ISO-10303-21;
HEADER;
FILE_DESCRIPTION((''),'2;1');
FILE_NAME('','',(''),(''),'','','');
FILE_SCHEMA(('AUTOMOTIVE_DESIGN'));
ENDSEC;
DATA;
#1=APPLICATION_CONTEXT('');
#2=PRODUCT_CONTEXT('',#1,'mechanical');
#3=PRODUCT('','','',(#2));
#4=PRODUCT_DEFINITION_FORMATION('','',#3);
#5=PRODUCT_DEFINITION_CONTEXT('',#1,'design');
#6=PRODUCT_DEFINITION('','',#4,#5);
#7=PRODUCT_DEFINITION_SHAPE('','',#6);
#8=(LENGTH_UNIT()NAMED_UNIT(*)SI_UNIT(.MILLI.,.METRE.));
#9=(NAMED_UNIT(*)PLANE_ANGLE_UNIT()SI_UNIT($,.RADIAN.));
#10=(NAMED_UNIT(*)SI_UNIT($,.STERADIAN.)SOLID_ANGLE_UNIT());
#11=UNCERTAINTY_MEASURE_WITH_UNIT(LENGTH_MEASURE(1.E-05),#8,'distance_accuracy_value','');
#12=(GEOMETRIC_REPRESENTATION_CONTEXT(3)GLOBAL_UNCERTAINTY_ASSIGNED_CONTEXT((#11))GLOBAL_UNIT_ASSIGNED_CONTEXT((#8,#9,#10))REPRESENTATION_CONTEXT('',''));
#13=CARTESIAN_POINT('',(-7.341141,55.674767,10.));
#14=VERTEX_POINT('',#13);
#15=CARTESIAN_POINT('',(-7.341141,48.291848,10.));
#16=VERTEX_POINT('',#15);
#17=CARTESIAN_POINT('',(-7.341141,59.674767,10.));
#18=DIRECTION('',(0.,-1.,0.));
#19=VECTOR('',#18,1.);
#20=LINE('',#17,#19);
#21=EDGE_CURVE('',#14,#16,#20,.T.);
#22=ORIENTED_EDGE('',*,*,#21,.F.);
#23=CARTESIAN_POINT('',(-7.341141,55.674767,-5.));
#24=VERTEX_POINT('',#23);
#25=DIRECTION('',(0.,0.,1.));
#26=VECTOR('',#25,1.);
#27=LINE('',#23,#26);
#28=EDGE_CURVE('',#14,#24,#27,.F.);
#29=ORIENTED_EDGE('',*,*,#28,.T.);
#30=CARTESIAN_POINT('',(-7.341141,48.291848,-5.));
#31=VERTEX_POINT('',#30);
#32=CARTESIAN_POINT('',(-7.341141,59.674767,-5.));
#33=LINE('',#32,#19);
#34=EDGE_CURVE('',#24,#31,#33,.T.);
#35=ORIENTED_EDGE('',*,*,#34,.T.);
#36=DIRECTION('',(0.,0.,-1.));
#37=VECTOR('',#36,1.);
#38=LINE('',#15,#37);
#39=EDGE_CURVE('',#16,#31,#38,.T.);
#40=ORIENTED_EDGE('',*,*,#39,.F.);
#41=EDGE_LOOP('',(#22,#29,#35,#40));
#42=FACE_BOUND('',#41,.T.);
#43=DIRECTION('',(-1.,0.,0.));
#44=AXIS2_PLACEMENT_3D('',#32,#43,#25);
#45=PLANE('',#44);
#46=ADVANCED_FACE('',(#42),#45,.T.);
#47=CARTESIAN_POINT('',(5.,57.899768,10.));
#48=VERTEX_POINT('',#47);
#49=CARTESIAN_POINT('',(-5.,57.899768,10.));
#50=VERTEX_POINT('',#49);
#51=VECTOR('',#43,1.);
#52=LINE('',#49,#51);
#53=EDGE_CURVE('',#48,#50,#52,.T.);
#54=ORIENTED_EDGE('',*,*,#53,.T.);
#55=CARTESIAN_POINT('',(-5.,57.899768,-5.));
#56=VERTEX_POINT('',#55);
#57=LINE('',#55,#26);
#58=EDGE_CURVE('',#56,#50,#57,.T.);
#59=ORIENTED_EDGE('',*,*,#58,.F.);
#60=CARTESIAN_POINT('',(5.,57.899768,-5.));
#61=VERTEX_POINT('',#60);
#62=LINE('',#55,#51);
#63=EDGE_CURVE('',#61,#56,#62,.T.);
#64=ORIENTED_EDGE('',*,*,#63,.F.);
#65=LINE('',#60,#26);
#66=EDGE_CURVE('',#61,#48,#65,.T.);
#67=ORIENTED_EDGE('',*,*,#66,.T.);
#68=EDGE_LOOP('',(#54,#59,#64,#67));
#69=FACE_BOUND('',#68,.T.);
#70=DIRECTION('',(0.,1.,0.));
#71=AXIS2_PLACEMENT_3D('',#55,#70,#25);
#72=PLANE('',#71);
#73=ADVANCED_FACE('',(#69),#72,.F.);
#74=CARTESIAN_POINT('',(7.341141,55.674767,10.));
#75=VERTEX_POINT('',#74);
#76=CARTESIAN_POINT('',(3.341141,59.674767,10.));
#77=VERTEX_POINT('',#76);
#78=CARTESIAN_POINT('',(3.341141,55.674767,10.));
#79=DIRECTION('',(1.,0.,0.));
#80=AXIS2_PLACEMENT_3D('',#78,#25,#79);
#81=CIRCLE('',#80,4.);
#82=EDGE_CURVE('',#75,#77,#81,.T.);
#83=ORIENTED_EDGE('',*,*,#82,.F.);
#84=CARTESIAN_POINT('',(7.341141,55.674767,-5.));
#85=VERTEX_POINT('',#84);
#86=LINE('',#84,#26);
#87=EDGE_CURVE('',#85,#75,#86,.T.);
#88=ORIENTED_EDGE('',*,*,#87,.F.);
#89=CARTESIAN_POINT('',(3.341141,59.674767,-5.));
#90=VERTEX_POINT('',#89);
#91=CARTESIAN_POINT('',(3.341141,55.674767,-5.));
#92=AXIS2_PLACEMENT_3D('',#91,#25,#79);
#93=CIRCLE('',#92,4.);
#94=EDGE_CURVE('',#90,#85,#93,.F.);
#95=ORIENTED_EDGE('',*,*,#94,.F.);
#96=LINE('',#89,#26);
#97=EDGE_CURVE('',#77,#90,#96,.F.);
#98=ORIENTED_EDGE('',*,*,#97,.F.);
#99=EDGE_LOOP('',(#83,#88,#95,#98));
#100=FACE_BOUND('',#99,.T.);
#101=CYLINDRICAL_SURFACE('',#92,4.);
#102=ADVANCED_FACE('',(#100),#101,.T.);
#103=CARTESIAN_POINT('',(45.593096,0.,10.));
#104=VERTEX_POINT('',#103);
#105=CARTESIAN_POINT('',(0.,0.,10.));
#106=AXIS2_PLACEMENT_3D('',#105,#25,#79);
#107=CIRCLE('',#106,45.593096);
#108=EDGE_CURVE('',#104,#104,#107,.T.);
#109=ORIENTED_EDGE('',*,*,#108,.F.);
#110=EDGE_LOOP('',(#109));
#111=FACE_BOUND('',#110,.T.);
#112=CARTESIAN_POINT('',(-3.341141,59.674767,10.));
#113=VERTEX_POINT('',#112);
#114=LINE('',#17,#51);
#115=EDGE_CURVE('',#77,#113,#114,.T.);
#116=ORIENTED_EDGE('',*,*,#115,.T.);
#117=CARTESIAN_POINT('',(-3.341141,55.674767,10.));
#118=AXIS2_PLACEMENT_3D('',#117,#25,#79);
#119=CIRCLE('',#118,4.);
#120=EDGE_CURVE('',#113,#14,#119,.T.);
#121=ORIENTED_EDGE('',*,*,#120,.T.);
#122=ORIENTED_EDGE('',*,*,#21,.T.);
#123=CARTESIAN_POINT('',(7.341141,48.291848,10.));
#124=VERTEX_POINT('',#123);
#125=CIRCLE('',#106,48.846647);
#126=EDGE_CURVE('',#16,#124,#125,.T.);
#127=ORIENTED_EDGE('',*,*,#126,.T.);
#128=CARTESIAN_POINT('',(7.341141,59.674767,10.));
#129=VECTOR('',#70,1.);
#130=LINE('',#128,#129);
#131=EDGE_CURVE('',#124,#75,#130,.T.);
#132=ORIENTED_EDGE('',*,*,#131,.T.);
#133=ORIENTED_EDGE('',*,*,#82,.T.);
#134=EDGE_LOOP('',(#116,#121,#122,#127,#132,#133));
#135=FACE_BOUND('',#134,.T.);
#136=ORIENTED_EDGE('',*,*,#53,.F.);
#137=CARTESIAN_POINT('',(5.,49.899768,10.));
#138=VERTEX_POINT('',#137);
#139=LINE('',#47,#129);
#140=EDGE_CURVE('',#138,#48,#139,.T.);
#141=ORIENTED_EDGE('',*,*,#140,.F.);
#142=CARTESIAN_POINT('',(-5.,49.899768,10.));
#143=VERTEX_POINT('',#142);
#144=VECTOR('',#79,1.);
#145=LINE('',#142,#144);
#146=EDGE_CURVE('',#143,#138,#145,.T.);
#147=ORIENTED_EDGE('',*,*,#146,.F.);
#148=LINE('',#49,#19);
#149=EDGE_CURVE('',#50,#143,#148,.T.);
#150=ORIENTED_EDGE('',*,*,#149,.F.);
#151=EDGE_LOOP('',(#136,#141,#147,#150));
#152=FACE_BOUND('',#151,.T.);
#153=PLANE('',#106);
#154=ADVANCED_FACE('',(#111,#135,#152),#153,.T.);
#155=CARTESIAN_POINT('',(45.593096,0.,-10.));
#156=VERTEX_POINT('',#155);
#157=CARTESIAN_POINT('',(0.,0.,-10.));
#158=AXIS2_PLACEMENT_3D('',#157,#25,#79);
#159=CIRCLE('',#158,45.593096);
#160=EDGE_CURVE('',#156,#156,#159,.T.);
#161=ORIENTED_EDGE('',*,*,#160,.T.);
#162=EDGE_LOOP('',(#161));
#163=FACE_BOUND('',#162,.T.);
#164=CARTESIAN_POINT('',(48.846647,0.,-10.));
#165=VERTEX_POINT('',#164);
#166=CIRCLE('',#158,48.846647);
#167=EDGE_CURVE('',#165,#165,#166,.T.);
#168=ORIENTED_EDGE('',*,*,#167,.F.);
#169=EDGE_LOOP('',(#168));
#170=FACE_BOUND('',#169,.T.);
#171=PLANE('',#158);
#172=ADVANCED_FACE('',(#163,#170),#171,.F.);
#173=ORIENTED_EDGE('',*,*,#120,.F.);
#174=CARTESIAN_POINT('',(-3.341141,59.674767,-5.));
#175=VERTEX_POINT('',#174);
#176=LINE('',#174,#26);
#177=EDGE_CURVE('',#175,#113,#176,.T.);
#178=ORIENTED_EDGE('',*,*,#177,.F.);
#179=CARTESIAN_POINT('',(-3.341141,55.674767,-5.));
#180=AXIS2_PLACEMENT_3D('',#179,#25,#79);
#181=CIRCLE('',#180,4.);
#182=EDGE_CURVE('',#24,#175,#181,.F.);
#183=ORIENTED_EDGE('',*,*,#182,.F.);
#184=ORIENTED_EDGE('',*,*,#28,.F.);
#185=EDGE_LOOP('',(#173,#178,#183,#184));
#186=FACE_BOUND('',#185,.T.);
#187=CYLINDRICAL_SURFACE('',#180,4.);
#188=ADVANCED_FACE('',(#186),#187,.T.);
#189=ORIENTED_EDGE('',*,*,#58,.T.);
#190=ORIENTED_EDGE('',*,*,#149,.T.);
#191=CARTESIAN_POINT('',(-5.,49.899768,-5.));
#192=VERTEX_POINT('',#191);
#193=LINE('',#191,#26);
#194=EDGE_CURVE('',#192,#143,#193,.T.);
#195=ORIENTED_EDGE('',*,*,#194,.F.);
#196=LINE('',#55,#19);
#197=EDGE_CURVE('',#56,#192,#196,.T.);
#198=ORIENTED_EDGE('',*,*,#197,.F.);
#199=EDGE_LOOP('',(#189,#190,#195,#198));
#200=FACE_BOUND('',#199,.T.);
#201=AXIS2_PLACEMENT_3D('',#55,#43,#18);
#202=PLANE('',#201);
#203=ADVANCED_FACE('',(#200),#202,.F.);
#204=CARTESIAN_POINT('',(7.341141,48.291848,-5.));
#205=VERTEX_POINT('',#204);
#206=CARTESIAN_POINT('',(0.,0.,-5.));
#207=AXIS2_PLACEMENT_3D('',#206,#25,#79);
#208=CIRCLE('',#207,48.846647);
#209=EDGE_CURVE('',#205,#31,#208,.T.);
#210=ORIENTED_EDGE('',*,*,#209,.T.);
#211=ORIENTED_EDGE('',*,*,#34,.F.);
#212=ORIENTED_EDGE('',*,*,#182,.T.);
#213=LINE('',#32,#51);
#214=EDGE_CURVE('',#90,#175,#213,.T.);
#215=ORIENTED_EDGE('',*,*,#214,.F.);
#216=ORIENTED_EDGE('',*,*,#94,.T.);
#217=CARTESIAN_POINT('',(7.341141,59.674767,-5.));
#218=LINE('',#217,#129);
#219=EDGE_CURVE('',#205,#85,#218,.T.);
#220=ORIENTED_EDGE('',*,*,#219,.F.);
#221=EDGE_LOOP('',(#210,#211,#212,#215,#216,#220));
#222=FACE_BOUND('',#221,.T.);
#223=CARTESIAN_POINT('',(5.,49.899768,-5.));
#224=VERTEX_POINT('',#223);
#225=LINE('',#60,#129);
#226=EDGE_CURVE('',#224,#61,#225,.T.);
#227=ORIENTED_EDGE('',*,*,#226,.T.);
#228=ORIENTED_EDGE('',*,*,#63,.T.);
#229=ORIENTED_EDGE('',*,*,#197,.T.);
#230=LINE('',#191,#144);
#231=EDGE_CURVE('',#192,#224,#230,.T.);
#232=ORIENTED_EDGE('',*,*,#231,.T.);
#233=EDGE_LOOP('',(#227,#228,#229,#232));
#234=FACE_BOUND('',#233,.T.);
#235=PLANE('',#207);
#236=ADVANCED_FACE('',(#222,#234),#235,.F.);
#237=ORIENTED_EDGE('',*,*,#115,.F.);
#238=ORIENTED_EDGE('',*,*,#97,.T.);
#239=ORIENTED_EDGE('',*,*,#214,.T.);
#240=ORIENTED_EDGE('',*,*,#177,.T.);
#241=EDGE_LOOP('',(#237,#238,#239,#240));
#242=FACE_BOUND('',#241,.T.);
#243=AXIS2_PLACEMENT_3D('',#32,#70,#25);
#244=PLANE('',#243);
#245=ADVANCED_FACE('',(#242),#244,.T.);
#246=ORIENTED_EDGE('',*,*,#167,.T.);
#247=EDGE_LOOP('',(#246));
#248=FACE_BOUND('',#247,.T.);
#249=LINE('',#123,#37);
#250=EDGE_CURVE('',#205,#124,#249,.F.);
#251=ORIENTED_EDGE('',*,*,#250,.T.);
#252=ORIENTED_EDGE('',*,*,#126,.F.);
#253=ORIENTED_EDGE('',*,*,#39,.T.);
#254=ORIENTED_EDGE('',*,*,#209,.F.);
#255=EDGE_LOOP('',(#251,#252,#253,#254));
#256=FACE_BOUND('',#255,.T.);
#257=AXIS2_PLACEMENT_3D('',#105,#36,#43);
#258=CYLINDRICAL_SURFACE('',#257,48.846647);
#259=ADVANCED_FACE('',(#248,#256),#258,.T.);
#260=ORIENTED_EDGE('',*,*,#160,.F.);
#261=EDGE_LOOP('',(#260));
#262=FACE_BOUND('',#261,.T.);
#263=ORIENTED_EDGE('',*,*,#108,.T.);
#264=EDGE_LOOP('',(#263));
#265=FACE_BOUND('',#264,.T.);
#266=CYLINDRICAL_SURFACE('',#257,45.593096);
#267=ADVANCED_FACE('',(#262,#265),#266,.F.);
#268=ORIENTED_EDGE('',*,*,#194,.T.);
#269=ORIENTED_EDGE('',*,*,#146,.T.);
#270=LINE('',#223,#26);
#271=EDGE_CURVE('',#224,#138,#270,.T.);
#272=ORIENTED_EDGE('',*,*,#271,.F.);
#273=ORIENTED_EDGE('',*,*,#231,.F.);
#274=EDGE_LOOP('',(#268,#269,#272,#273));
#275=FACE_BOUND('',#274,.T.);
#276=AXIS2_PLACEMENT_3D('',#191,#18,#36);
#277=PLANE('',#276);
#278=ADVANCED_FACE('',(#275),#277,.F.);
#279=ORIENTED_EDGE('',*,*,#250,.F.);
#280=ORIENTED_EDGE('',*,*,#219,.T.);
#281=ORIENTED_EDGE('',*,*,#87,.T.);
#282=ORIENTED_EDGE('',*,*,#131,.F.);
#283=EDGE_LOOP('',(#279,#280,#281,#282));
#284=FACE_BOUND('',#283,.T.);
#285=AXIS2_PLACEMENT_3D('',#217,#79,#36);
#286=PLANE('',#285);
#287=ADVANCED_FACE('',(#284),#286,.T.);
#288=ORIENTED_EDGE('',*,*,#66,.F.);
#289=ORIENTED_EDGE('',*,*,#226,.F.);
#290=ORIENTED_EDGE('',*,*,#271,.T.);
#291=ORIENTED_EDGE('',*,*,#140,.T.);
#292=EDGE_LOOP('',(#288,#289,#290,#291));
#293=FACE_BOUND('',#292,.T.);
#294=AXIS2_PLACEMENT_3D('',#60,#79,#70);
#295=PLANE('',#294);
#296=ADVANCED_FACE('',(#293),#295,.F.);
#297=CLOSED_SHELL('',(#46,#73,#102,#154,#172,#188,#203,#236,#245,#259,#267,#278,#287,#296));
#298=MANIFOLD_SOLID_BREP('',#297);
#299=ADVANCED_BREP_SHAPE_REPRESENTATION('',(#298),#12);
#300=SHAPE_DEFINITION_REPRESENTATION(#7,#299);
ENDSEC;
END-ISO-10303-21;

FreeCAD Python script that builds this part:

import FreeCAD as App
import Part
import Sketcher
from FreeCAD import Vector
Q = App.Units.Quantity


def edges_at(feature, points):
    """Names of the edges that pass closest to the given points."""
    edges = feature.Shape.Edges
    near = lambda p: min(range(len(edges)), key=lambda i: edges[i].distToShape(Part.Vertex(*p))[0])
    return sorted({f"Edge{near(p) + 1}" for p in points})


def add_polygon(sketch, points):
    """Adds a closed chain of lines whose ends are joined by coincident constraints."""
    first, n = sketch.GeometryCount, len(points)
    for a, b in zip(points, points[1:] + points[:1]):
        sketch.addGeometry(Part.LineSegment(App.Vector(*a, 0), App.Vector(*b, 0)), False)
    for i in range(n):
        sketch.addConstraint(Sketcher.Constraint("Coincident", first + i, 2, first + (i + 1) % n, 1))

doc = App.newDocument("Part")
params = doc.addObject("Spreadsheet::Sheet", "Params")
for row, (alias, value) in enumerate([
    ("pad1_length", "20 mm"),
    ("sketch2_width", "10 mm"),
    ("sketch2_height", "8 mm"),
    ("pad2_length", "15 mm"),
    ("fillet_radius", "4 mm"),
], start=1):
    params.set(f"A{row}", alias)
    params.set(f"B{row}", "=" + value)
    params.setAlias(f"B{row}", alias)

body = doc.addObject("PartDesign::Body", "Body")

sketch1 = doc.addObject("Sketcher::SketchObject", "Sketch")
body.addObject(sketch1)
sketch1.AttachmentSupport = (doc.XY_Plane, [""])
sketch1.MapMode = "FlatFace"
sketch1.addGeometry(Part.Circle(Vector(0, 0, 0), Vector(0, 0, 1), 49), False)
sketch1.addGeometry(Part.Circle(Vector(0, 0, 0), Vector(0, 0, 1), 46), False)
sketch1.addConstraint(Sketcher.Constraint("Coincident", 0, 3, -1, 1))
sketch1.addConstraint(Sketcher.Constraint("Coincident", 1, 3, -1, 1))
sketch1.addConstraint(Sketcher.Constraint("Diameter", 1, Q("91.186192 mm")))
sketch1.addConstraint(Sketcher.Constraint("Diameter", 0, Q("97.693293 mm")))
pad1 = doc.addObject("PartDesign::Pad", "Pad")
body.addObject(pad1)
pad1.Profile = sketch1
pad1.setExpression("Length", "Params.pad1_length")
pad1.Midplane = True

sketch2 = doc.addObject("Sketcher::SketchObject", "Sketch001")
body.addObject(sketch2)
sketch2.AttachmentSupport = (doc.XY_Plane, [""])
sketch2.MapMode = "FlatFace"
sketch2.AttachmentOffset = App.Placement(Vector(0, 0, 10), App.Rotation())
add_polygon(sketch2, [(-7, 60), (-7, 48), (7, 48), (7, 60)])
add_polygon(sketch2, [(5, 50), (-5, 50), (-5, 58), (5, 58)])
sketch2.addConstraint(Sketcher.Constraint("Vertical", 0))
sketch2.addConstraint(Sketcher.Constraint("Horizontal", 1))
sketch2.addConstraint(Sketcher.Constraint("Vertical", 2))
sketch2.addConstraint(Sketcher.Constraint("Horizontal", 3))
sketch2.addConstraint(Sketcher.Constraint("Horizontal", 4))
sketch2.addConstraint(Sketcher.Constraint("Vertical", 5))
sketch2.addConstraint(Sketcher.Constraint("Horizontal", 6))
sketch2.addConstraint(Sketcher.Constraint("Vertical", 7))
sketch2.addConstraint(Sketcher.Constraint("DistanceX", 4, 2, 4, 1, Q("10 mm")))
sketch2.addConstraint(Sketcher.Constraint("DistanceY", 5, 1, 5, 2, Q("8 mm")))
sketch2.addConstraint(Sketcher.Constraint("DistanceX", 4, 2, -1, 1, Q("5 mm")))
sketch2.addConstraint(Sketcher.Constraint("DistanceY", 0, 2, 4, 2, Q("1.774999 mm")))
sketch2.addConstraint(Sketcher.Constraint("DistanceY", 4, 2, 3, 2, Q("9.774999 mm")))
sketch2.addConstraint(Sketcher.Constraint("DistanceX", 1, 1, 1, 2, Q("14.682281 mm")))
sketch2.addConstraint(Sketcher.Constraint("DistanceX", 0, 2, -1, 1, Q("7.341141 mm")))
sketch2.addConstraint(Sketcher.Constraint("DistanceY", -1, 1, 0, 2, Q("48.12477 mm")))
sketch2.setExpression("Constraints[16]", "Params.sketch2_width")
sketch2.setExpression("Constraints[17]", "Params.sketch2_height")
pad2 = doc.addObject("PartDesign::Pad", "Pad001")
body.addObject(pad2)
pad2.Profile = sketch2
pad2.setExpression("Length", "Params.pad2_length")
pad2.Reversed = True
doc.recompute()

fillet = doc.addObject("PartDesign::Fillet", "Fillet")
body.addObject(fillet)
fillet.Base = (pad2, edges_at(pad2, [(7.341, 59.675, 2.5), (-7.341, 59.675, 2.5)]))
fillet.setExpression("Radius", "Params.fillet_radius")

doc.recompute()
